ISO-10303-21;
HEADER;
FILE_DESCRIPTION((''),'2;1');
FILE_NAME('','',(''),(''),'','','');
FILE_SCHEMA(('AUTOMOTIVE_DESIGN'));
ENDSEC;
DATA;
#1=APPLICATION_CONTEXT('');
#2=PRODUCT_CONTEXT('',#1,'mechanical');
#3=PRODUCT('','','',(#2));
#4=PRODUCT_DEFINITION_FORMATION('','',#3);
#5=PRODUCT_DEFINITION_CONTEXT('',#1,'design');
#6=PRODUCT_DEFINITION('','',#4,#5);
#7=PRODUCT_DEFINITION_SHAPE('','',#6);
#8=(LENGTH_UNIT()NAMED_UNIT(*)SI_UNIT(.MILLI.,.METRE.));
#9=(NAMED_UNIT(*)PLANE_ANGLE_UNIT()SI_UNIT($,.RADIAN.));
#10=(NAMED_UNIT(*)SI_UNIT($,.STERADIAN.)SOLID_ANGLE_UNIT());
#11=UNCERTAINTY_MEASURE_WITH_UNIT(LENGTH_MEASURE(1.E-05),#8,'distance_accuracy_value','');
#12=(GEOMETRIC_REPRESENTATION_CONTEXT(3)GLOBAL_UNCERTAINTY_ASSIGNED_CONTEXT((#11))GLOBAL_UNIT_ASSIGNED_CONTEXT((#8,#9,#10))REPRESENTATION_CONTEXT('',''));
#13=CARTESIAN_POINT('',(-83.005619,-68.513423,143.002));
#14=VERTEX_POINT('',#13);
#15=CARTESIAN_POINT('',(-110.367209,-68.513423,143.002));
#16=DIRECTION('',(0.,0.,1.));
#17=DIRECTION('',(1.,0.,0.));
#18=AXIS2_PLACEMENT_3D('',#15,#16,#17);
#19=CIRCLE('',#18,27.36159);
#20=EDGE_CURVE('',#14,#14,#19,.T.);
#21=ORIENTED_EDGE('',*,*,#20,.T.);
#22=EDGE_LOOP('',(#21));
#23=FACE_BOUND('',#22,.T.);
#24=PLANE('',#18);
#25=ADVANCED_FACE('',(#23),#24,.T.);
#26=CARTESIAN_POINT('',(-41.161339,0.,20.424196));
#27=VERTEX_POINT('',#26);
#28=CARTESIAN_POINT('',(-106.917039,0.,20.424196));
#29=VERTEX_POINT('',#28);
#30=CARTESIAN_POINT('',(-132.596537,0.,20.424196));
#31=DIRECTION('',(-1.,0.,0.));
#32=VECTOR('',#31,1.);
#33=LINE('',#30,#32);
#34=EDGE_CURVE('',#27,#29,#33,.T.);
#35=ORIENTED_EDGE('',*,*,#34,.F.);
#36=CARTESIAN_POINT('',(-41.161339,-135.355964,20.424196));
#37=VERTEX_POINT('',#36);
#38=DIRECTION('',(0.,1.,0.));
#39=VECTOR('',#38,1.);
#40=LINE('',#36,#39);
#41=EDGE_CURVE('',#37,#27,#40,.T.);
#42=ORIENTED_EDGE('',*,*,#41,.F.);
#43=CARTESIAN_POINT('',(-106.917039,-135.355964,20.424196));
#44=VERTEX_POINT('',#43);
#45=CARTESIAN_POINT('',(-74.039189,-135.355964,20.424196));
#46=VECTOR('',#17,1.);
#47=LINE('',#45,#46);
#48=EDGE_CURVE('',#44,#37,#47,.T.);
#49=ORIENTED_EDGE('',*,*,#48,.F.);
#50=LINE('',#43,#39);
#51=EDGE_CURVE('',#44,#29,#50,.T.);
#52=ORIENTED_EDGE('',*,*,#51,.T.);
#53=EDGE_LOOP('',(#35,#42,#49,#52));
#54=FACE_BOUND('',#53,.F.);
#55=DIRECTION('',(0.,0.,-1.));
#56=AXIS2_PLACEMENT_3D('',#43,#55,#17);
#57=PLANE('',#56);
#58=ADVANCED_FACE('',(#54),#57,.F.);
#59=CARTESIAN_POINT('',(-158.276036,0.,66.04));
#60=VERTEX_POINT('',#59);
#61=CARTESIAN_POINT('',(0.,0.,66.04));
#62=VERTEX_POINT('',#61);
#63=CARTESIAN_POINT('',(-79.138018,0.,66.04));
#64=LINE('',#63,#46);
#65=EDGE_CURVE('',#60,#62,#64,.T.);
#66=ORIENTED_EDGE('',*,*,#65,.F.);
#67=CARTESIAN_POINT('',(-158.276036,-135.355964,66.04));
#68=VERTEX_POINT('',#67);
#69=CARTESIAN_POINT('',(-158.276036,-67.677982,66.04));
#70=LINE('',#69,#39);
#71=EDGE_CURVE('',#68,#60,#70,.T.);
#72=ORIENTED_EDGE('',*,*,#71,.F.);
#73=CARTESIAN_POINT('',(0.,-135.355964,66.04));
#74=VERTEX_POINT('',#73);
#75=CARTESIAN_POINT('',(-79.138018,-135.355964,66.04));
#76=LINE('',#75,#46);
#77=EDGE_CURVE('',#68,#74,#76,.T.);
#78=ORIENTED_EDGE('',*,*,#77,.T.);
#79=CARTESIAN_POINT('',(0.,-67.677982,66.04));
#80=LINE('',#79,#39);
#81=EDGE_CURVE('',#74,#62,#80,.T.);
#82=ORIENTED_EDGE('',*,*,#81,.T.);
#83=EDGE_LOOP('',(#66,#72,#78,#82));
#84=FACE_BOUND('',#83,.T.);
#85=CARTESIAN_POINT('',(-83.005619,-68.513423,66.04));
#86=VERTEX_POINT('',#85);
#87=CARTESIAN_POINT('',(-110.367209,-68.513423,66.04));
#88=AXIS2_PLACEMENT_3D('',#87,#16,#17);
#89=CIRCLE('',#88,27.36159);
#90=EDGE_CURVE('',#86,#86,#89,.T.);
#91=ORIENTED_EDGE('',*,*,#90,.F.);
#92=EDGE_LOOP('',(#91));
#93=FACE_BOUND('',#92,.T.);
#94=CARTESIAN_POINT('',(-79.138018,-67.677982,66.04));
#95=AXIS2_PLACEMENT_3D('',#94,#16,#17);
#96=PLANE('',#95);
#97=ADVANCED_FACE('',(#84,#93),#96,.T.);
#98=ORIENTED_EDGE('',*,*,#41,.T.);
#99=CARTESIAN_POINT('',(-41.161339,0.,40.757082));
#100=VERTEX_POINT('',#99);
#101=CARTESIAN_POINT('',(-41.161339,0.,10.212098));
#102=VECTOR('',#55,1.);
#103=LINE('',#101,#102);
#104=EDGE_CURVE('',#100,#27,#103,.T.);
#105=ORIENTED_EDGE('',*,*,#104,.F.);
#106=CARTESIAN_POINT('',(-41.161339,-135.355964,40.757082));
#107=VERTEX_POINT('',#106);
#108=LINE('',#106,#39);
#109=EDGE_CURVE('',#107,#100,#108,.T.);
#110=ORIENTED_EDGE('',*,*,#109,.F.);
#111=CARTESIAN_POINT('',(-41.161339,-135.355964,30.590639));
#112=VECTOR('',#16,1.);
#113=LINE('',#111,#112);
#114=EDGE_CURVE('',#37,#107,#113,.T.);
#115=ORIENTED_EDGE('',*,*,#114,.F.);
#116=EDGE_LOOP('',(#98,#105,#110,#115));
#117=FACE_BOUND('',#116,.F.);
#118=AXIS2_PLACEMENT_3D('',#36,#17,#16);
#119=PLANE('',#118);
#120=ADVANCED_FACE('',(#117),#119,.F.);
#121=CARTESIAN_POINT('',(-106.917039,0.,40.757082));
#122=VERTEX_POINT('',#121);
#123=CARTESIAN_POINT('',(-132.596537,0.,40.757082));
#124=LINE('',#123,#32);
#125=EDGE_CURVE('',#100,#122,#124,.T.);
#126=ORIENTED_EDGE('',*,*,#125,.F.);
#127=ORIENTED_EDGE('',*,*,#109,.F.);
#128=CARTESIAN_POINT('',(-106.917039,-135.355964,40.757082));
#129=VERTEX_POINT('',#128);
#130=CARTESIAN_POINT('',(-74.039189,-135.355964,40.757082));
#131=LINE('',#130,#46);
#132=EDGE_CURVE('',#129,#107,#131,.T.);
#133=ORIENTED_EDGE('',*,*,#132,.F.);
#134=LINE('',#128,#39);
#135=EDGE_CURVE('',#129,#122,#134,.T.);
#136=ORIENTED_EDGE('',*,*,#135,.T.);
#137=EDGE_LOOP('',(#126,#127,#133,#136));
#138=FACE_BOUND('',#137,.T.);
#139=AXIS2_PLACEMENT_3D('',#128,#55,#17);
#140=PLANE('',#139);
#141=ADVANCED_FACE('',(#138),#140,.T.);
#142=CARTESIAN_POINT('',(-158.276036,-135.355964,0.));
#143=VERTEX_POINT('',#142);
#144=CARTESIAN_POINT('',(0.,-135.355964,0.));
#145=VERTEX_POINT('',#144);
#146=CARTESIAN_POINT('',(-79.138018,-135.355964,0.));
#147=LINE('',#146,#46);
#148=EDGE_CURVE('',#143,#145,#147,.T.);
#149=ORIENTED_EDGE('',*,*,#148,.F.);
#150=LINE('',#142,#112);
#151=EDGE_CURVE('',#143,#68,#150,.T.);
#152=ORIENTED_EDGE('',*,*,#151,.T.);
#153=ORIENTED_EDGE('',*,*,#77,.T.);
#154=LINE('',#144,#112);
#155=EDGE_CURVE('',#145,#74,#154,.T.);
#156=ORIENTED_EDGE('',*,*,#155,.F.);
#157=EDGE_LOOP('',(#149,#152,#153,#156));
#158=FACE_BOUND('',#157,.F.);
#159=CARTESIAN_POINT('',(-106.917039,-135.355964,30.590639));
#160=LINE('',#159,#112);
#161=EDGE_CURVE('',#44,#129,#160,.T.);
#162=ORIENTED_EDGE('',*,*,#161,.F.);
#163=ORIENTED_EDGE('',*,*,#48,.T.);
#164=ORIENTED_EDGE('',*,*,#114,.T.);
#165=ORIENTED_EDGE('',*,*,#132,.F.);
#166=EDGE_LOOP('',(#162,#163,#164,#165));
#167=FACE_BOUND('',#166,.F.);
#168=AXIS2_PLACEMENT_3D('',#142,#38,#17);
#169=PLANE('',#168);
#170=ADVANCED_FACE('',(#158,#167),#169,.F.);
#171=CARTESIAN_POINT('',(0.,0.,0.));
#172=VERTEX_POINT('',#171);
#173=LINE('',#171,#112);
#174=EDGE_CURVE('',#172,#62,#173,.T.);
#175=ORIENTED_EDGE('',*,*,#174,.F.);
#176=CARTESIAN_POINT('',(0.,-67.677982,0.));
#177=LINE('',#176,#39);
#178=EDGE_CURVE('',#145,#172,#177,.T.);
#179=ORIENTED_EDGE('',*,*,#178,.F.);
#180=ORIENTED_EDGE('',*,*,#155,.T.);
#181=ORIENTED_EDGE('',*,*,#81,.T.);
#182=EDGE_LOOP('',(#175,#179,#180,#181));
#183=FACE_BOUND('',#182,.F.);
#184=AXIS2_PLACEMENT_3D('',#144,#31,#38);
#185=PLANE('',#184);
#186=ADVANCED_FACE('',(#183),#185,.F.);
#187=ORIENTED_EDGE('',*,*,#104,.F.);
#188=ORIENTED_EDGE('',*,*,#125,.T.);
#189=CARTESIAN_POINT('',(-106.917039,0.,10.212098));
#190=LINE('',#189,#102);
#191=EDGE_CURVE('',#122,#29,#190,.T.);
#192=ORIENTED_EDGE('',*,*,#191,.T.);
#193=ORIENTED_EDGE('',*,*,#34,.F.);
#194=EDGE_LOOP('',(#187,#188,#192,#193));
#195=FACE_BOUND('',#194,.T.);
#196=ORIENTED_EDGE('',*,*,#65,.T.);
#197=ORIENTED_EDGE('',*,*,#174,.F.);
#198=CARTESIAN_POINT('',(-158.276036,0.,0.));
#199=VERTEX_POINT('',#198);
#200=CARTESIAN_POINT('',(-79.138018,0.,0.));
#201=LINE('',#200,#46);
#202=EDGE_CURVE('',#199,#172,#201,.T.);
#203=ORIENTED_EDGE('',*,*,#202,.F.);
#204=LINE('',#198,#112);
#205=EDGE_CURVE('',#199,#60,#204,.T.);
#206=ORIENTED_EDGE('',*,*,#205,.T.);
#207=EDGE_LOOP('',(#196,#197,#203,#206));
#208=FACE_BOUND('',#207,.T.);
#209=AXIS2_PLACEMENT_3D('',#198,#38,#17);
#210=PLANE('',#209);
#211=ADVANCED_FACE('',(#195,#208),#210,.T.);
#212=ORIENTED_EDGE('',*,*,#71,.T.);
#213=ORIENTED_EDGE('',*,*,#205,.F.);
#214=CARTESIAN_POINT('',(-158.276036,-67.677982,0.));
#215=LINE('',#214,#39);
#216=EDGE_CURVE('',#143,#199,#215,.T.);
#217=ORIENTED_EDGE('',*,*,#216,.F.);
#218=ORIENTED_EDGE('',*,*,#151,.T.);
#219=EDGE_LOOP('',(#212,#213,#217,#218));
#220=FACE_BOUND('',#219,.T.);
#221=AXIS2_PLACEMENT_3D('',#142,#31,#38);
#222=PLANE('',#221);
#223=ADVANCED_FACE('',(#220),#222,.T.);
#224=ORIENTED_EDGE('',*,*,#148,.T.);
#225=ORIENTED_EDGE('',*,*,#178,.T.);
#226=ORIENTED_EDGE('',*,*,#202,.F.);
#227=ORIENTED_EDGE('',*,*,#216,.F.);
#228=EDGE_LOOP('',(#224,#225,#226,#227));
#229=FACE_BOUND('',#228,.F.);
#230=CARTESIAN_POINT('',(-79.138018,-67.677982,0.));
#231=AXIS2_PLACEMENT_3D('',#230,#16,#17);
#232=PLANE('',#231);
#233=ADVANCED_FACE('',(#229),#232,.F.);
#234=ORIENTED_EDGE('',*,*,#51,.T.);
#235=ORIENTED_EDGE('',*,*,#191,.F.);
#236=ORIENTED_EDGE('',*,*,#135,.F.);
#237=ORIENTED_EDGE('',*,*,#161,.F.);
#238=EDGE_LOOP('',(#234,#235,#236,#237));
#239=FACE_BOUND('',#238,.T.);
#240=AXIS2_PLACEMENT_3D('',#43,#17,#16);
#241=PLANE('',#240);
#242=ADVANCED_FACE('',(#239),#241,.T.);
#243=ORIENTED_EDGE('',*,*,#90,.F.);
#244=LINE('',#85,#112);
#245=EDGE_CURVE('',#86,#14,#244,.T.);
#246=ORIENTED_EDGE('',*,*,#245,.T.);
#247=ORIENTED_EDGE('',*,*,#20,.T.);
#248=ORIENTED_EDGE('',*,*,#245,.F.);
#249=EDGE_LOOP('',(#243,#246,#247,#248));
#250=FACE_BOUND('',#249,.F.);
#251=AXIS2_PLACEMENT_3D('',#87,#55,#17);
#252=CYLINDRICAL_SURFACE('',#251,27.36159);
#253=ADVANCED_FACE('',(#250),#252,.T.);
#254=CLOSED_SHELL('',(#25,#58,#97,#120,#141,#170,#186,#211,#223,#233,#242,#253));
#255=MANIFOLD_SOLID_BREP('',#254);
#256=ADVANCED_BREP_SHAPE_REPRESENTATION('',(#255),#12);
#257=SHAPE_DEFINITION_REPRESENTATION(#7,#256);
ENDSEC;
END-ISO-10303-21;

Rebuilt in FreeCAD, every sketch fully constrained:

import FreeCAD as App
import Part
import Sketcher
from FreeCAD import Vector
Q = App.Units.Quantity

doc = App.newDocument("Part")
body = doc.addObject("PartDesign::Body", "Body")

# Sketch on XY plane
sketch1 = doc.addObject("Sketcher::SketchObject", "Sketch")
body.addObject(sketch1)
sketch1.AttachmentSupport = (doc.XY_Plane, [""])
sketch1.MapMode = "FlatFace"
sketch1.addGeometry([
    Part.LineSegment(Vector(-158, 0, 0), Vector(-158, -135, 0)),
    Part.LineSegment(Vector(-158, -135, 0), Vector(0, -135, 0)),
    Part.LineSegment(Vector(0, -135, 0), Vector(0, 0, 0)),
    Part.LineSegment(Vector(0, 0, 0), Vector(-158, 0, 0)),
], False)
sketch1.addConstraint([
    Sketcher.Constraint("Coincident", 0, 2, 1, 1),
    Sketcher.Constraint("Coincident", 1, 2, 2, 1),
    Sketcher.Constraint("Coincident", 2, 2, 3, 1),
    Sketcher.Constraint("Coincident", 3, 2, 0, 1),
    Sketcher.Constraint("Vertical", 0),
    Sketcher.Constraint("Horizontal", 1),
    Sketcher.Constraint("Vertical", 2),
    Sketcher.Constraint("Horizontal", 3),
    Sketcher.Constraint("Coincident", 2, 2, -1, 1),
    Sketcher.Constraint("DistanceX", 1, 1, 1, 2, Q("158.276036 mm")),
    Sketcher.Constraint("DistanceY", 0, 2, 0, 1, Q("135.355964 mm")),
])
pad1 = doc.addObject("PartDesign::Pad", "Pad")
body.addObject(pad1)
pad1.Profile = sketch1
pad1.Length = Q("2.6 in")

# Sketch on XY plane
sketch2 = doc.addObject("Sketcher::SketchObject", "Sketch001")
body.addObject(sketch2)
sketch2.AttachmentSupport = (doc.XY_Plane, [""])
sketch2.MapMode = "FlatFace"
sketch2.AttachmentOffset = App.Placement(Vector(0, 0, 2.6 * 25.4), App.Rotation())
sketch2.addGeometry(Part.Circle(Vector(-110, -69, 0), Vector(0, 0, 1), 27), False)
sketch2.addConstraint([
    Sketcher.Constraint("Diameter", 0, Q("54.72318 mm")),
    Sketcher.Constraint("DistanceX", 0, 3, -1, 1, Q("110.367209 mm")),
    Sketcher.Constraint("DistanceY", 0, 3, -1, 1, Q("68.513423 mm")),
])
pad2 = doc.addObject("PartDesign::Pad", "Pad001")
body.addObject(pad2)
pad2.Profile = sketch2
pad2.Length = Q("3.03 in")

# Sketch on XZ plane
sketch3 = doc.addObject("Sketcher::SketchObject", "Sketch002")
body.addObject(sketch3)
sketch3.AttachmentSupport = (doc.XZ_Plane, [""])
sketch3.MapMode = "FlatFace"
sketch3.AttachmentOffset = App.Placement(Vector(0, 0, 135.355964), App.Rotation())
sketch3.addGeometry([
    Part.LineSegment(Vector(-107, 41, 0), Vector(-107, 20, 0)),
    Part.LineSegment(Vector(-107, 20, 0), Vector(-41, 20, 0)),
    Part.LineSegment(Vector(-41, 20, 0), Vector(-41, 41, 0)),
    Part.LineSegment(Vector(-41, 41, 0), Vector(-107, 41, 0)),
], False)
sketch3.addConstraint([
    Sketcher.Constraint("Coincident", 0, 2, 1, 1),
    Sketcher.Constraint("Coincident", 1, 2, 2, 1),
    Sketcher.Constraint("Coincident", 2, 2, 3, 1),
    Sketcher.Constraint("Coincident", 3, 2, 0, 1),
    Sketcher.Constraint("Vertical", 0),
    Sketcher.Constraint("Horizontal", 1),
    Sketcher.Constraint("Vertical", 2),
    Sketcher.Constraint("Horizontal", 3),
    Sketcher.Constraint("DistanceX", 1, 1, 1, 2, Q("65.755699 mm")),
    Sketcher.Constraint("DistanceY", 0, 2, 0, 1, Q("20.332886 mm")),
    Sketcher.Constraint("DistanceX", 0, 2, -1, 1, Q("106.917039 mm")),
    Sketcher.Constraint("DistanceY", -1, 1, 2, 2, Q("40.757082 mm")),
])
pocket1 = doc.addObject("PartDesign::Pocket", "Pocket")
body.addObject(pocket1)
pocket1.Profile = sketch3
pocket1.Length = Q("7.02 in")

doc.recompute()
